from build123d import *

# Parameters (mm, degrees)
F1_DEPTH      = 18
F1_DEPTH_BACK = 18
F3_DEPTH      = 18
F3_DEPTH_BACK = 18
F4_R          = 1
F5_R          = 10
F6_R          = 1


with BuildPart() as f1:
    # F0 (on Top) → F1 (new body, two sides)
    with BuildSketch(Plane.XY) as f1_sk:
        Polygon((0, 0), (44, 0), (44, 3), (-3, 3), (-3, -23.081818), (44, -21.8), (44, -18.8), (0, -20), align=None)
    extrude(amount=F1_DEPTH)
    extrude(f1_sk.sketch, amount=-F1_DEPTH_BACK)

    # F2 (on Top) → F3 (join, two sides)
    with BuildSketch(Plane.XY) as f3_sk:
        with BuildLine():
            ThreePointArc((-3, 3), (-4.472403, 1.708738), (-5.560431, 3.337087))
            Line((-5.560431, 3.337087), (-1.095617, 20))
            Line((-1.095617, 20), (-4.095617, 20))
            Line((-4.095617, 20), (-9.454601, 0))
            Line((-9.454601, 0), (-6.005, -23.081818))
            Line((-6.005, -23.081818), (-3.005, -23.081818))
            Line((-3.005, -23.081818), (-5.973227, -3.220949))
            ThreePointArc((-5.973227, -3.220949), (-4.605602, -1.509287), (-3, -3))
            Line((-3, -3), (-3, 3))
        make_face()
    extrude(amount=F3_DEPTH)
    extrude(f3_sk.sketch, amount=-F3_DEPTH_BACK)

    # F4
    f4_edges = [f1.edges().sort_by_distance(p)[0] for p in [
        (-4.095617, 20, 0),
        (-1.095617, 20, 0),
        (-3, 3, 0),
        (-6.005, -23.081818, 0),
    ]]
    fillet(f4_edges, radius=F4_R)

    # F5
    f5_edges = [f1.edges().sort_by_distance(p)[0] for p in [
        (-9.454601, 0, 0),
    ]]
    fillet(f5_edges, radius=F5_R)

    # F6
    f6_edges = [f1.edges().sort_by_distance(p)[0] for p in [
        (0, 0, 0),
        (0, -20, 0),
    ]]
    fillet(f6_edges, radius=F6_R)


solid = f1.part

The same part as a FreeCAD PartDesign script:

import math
import FreeCAD as App
import Part
import Sketcher
from FreeCAD import Vector
Q = App.Units.Quantity


def edges_at(feature, points):
    """Names of the edges that pass closest to the given points."""
    edges = feature.Shape.Edges
    near = lambda p: min(range(len(edges)), key=lambda i: edges[i].distToShape(Part.Vertex(*p))[0])
    return sorted({f"Edge{near(p) + 1}" for p in points})

doc = App.newDocument("Part")
params = doc.addObject("Spreadsheet::Sheet", "Params")
for row, (alias, value) in enumerate([
    ("sketch1_width", "44 mm"),
    ("sketch1_width2", "47 mm"),
    ("sketch1_height", "3 mm"),
    ("sketch1_height2", "20 mm"),
    ("pad1_length", "18 mm"),
    ("pad1_length2", "18 mm"),
    ("sketch2_width", "3 mm"),
    ("sketch2_height", "6 mm"),
    ("pad2_length", "18 mm"),
    ("pad2_length2", "18 mm"),
    ("fillet_radius", "1 mm"),
    ("fillet2_radius", "10 mm"),
    ("fillet3_radius", "1 mm"),
], start=1):
    params.set(f"A{row}", alias)
    params.set(f"B{row}", "=" + value)
    params.setAlias(f"B{row}", alias)

body = doc.addObject("PartDesign::Body", "Body")

sketch1 = doc.addObject("Sketcher::SketchObject", "Sketch")
body.addObject(sketch1)
sketch1.AttachmentSupport = (doc.XY_Plane, [""])
sketch1.MapMode = "FlatFace"
sketch1.addGeometry(Part.LineSegment(Vector(0, 0, 0), Vector(44, 0, 0)), False)
sketch1.addGeometry(Part.LineSegment(Vector(44, 0, 0), Vector(44, 3, 0)), False)
sketch1.addGeometry(Part.LineSegment(Vector(44, 3, 0), Vector(-3, 3, 0)), False)
sketch1.addGeometry(Part.LineSegment(Vector(-3, 3, 0), Vector(-3, -23.1, 0)), False)
sketch1.addGeometry(Part.LineSegment(Vector(-3, -23.1, 0), Vector(44, -21.8, 0)), False)
sketch1.addGeometry(Part.LineSegment(Vector(44, -21.8, 0), Vector(44, -18.8, 0)), False)
sketch1.addGeometry(Part.LineSegment(Vector(44, -18.8, 0), Vector(0, -20, 0)), False)
sketch1.addGeometry(Part.LineSegment(Vector(0, -20, 0), Vector(0, 0, 0)), False)
sketch1.addConstraint(Sketcher.Constraint("Coincident", 0, 2, 1, 1))
sketch1.addConstraint(Sketcher.Constraint("Coincident", 1, 2, 2, 1))
sketch1.addConstraint(Sketcher.Constraint("Coincident", 2, 2, 3, 1))
sketch1.addConstraint(Sketcher.Constraint("Coincident", 3, 2, 4, 1))
sketch1.addConstraint(Sketcher.Constraint("Coincident", 4, 2, 5, 1))
sketch1.addConstraint(Sketcher.Constraint("Coincident", 5, 2, 6, 1))
sketch1.addConstraint(Sketcher.Constraint("Coincident", 6, 2, 7, 1))
sketch1.addConstraint(Sketcher.Constraint("Coincident", 7, 2, 0, 1))
sketch1.addConstraint(Sketcher.Constraint("Horizontal", 0))
sketch1.addConstraint(Sketcher.Constraint("Vertical", 1))
sketch1.addConstraint(Sketcher.Constraint("Horizontal", 2))
sketch1.addConstraint(Sketcher.Constraint("Vertical", 3))
sketch1.addConstraint(Sketcher.Constraint("Vertical", 5))
sketch1.addConstraint(Sketcher.Constraint("Vertical", 7))
sketch1.addConstraint(Sketcher.Constraint("Coincident", 7, 2, -1, 1))
sketch1.addConstraint(Sketcher.Constraint("Parallel", 4, 6))
sketch1.addConstraint(Sketcher.Constraint("Vertical", 1, 2, 4, 2))
sketch1.addConstraint(Sketcher.Constraint("Equal", 1, 5))
sketch1.addConstraint(Sketcher.Constraint("DistanceX", 0, 1, 0, 2, Q("44 mm")))
sketch1.addConstraint(Sketcher.Constraint("DistanceX", 2, 2, 2, 1, Q("47 mm")))
sketch1.addConstraint(Sketcher.Constraint("DistanceY", 1, 1, 1, 2, Q("3 mm")))
sketch1.addConstraint(Sketcher.Constraint("DistanceY", 7, 1, 7, 2, Q("20 mm")))
sketch1.addConstraint(Sketcher.Constraint("DistanceY", 4, 2, -1, 1, Q("21.8 mm")))
sketch1.setExpression("Constraints[18]", "Params.sketch1_width")
sketch1.setExpression("Constraints[19]", "Params.sketch1_width2")
sketch1.setExpression("Constraints[20]", "Params.sketch1_height")
sketch1.setExpression("Constraints[21]", "Params.sketch1_height2")
pad1 = doc.addObject("PartDesign::Pad", "Pad")
body.addObject(pad1)
pad1.Profile = sketch1
pad1.Type = "TwoLengths"
pad1.setExpression("Length", "Params.pad1_length")
pad1.setExpression("Length2", "Params.pad1_length2")

sketch2 = doc.addObject("Sketcher::SketchObject", "Sketch001")
body.addObject(sketch2)
sketch2.AttachmentSupport = (doc.XY_Plane, [""])
sketch2.MapMode = "FlatFace"
sketch2.addGeometry(Part.ArcOfCircle(Part.Circle(Vector(-4.3, 3, 0), Vector(0, 0, 1), 1.3), math.radians(165), math.radians(360)), False)
sketch2.addGeometry(Part.LineSegment(Vector(-5.6, 3.3, 0), Vector(-1.1, 20, 0)), False)
sketch2.addGeometry(Part.LineSegment(Vector(-1.1, 20, 0), Vector(-4.1, 20, 0)), False)
sketch2.addGeometry(Part.LineSegment(Vector(-4.1, 20, 0), Vector(-9.5, 0, 0)), False)
sketch2.addGeometry(Part.LineSegment(Vector(-9.5, 0, 0), Vector(-6, -23.1, 0)), False)
sketch2.addGeometry(Part.LineSegment(Vector(-6, -23.1, 0), Vector(-3, -23.1, 0)), False)
sketch2.addGeometry(Part.LineSegment(Vector(-3, -23.1, 0), Vector(-6, -3.2, 0)), False)
sketch2.addGeometry(Part.ArcOfCircle(Part.Circle(Vector(-4.5, -3, 0), Vector(0, 0, 1), 1.5), math.radians(0), math.radians(189)), False)
sketch2.addGeometry(Part.LineSegment(Vector(-3, -3, 0), Vector(-3, 3, 0)), False)
sketch2.addConstraint(Sketcher.Constraint("Tangent", 0, 1, 1, 1))
sketch2.addConstraint(Sketcher.Constraint("Coincident", 1, 2, 2, 1))
sketch2.addConstraint(Sketcher.Constraint("Coincident", 2, 2, 3, 1))
sketch2.addConstraint(Sketcher.Constraint("Coincident", 3, 2, 4, 1))
sketch2.addConstraint(Sketcher.Constraint("Coincident", 4, 2, 5, 1))
sketch2.addConstraint(Sketcher.Constraint("Coincident", 5, 2, 6, 1))
sketch2.addConstraint(Sketcher.Constraint("Tangent", 6, 2, 7, 2))
sketch2.addConstraint(Sketcher.Constraint("Tangent", 7, 1, 8, 1))
sketch2.addConstraint(Sketcher.Constraint("Tangent", 8, 2, 0, 2))
sketch2.addConstraint(Sketcher.Constraint("Horizontal", 2))
sketch2.addConstraint(Sketcher.Constraint("Horizontal", 5))
sketch2.addConstraint(Sketcher.Constraint("Vertical", 8))
sketch2.addConstraint(Sketcher.Constraint("PointOnObject", 3, 2, -1))
sketch2.addConstraint(Sketcher.Constraint("Parallel", 1, 3))
sketch2.addConstraint(Sketcher.Constraint("Parallel", 4, 6))
sketch2.addConstraint(Sketcher.Constraint("Equal", 2, 5))
sketch2.addConstraint(Sketcher.Constraint("DistanceX", 2, 2, 2, 1, Q("3 mm")))
sketch2.addConstraint(Sketcher.Constraint("DistanceY", 8, 1, 8, 2, Q("6 mm")))
sketch2.addConstraint(Sketcher.Constraint("Angle", 1, Q("75 deg")))
sketch2.addConstraint(Sketcher.Constraint("DistanceY", -1, 1, 0, 3, Q("3 mm")))
sketch2.addConstraint(Sketcher.Constraint("DistanceY", -1, 1, 1, 2, Q("20 mm")))
sketch2.addConstraint(Sketcher.Constraint("DistanceX", 7, 1, -1, 1, Q("3 mm")))
sketch2.addConstraint(Sketcher.Constraint("Angle", 4, Q("-81.5 deg")))
sketch2.addConstraint(Sketcher.Constraint("DistanceX", 4, 2, -1, 1, Q("6.005 mm")))
sketch2.addConstraint(Sketcher.Constraint("Radius", 0, Q("1.302405 mm")))
sketch2.setExpression("Constraints[16]", "Params.sketch2_width")
sketch2.setExpression("Constraints[17]", "Params.sketch2_height")
pad2 = doc.addObject("PartDesign::Pad", "Pad001")
body.addObject(pad2)
pad2.Profile = sketch2
pad2.Type = "TwoLengths"
pad2.setExpression("Length", "Params.pad2_length")
pad2.setExpression("Length2", "Params.pad2_length2")
doc.recompute()

fillet = doc.addObject("PartDesign::Fillet", "Fillet")
body.addObject(fillet)
fillet.Base = (pad2, edges_at(pad2, [
    (-4.096, 20, 0),
    (-1.096, 20, 0),
    (-3, 3, 0),
    (-6.005, -23.082, 0),
]))
fillet.setExpression("Radius", "Params.fillet_radius")
doc.recompute()

fillet2 = doc.addObject("PartDesign::Fillet", "Fillet001")
body.addObject(fillet2)
fillet2.Base = (fillet, edges_at(fillet, [(-9.455, 0, 0)]))
fillet2.setExpression("Radius", "Params.fillet2_radius")
doc.recompute()

fillet3 = doc.addObject("PartDesign::Fillet", "Fillet002")
body.addObject(fillet3)
fillet3.Base = (fillet2, edges_at(fillet2, [(0, 0, 0), (0, -20, 0)]))
fillet3.setExpression("Radius", "Params.fillet3_radius")

doc.recompute()
